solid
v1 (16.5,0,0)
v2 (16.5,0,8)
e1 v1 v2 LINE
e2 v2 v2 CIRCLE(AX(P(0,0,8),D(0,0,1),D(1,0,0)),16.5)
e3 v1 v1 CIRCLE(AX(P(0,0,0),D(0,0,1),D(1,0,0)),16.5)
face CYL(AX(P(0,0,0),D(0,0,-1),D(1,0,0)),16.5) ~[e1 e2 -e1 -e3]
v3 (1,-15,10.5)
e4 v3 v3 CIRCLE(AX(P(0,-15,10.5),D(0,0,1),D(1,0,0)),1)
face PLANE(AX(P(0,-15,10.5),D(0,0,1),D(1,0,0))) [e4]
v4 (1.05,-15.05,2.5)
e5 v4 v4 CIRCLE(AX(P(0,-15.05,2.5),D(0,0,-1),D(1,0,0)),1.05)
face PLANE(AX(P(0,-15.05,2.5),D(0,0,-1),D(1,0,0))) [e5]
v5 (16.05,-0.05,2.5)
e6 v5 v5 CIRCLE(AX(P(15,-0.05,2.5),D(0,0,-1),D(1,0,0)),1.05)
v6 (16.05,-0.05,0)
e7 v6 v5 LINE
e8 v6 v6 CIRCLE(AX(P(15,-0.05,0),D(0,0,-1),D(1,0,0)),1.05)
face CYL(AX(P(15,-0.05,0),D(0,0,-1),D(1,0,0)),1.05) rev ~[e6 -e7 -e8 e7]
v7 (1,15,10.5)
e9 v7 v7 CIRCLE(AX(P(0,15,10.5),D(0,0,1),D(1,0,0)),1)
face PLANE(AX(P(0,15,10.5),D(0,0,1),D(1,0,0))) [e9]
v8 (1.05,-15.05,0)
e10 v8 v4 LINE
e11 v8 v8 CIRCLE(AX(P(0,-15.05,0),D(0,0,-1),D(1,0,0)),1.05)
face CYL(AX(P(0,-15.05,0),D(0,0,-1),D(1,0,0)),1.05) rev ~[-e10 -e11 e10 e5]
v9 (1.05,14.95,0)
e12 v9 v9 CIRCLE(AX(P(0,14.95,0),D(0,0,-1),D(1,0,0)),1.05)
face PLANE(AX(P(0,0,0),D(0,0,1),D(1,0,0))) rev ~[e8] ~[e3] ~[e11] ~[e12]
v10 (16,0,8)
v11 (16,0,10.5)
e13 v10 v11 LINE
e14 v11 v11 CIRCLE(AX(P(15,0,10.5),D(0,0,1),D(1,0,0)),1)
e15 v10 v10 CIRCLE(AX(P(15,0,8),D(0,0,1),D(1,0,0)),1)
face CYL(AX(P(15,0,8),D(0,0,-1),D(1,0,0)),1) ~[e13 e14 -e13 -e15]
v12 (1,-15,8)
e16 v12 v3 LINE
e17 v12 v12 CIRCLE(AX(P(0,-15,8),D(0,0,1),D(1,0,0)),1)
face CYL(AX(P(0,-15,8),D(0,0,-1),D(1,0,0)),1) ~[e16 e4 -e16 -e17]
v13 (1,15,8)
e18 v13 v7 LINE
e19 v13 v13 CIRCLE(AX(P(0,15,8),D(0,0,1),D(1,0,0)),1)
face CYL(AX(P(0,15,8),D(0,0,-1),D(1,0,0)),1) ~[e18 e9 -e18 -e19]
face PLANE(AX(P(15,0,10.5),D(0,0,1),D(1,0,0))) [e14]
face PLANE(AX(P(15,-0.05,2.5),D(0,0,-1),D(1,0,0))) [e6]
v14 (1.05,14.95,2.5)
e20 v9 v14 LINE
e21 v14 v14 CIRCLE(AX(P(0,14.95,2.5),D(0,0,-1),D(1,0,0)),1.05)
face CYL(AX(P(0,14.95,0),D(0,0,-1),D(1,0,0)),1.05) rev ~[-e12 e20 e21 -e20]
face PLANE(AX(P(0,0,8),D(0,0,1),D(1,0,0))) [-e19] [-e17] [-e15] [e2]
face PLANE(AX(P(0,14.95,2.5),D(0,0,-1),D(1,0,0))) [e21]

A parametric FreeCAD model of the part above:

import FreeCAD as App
import Part
import Sketcher

V = App.Vector

doc = App.newDocument("Part")
body = doc.addObject("PartDesign::Body", "Body")

# Sketch on XY plane
sketch1 = body.newObject("Sketcher::SketchObject", "Sketch")
sketch1.AttachmentSupport = (doc.getObject("XY_Plane"), [""])
sketch1.MapMode = "FlatFace"
sketch1.addGeometry(Part.Circle(V(0, 0, 0), V(0, 0, 1), 16.5), False)
sketch1.addConstraint([
    Sketcher.Constraint("Coincident", 0, 3, -1, 1),
    Sketcher.Constraint("Diameter", 0, 33.0),
])
pad1 = body.newObject("PartDesign::Pad", "Pad")
pad1.Profile = sketch1
pad1.Length = 8

# Sketch on XY plane
sketch2 = body.newObject("Sketcher::SketchObject", "Sketch001")
sketch2.AttachmentSupport = (doc.getObject("XY_Plane"), [""])
sketch2.MapMode = "FlatFace"
sketch2.addGeometry([
    Part.Circle(V(0, -15.05, 0), V(0, 0, 1), 1.05),
    Part.Circle(V(15, -0.05, 0), V(0, 0, 1), 1.05),
    Part.Circle(V(0, 14.95, 0), V(0, 0, 1), 1.05),
], False)
sketch2.addConstraint([
    Sketcher.Constraint("Equal", 0, 1),
    Sketcher.Constraint("Equal", 1, 2),
    Sketcher.Constraint("PointOnObject", 0, 3, -2),
    Sketcher.Constraint("PointOnObject", 2, 3, -2),
    Sketcher.Constraint("Diameter", 0, 2.1),
    Sketcher.Constraint("DistanceX", -1, 1, 1, 3, 15.0),
    Sketcher.Constraint("DistanceY", 0, 3, 1, 3, 15.0),
    Sketcher.Constraint("DistanceY", 1, 3, 2, 3, 15.0),
    Sketcher.Constraint("DistanceY", 0, 3, -1, 1, 15.05),
])
pocket1 = body.newObject("PartDesign::Pocket", "Pocket")
pocket1.Profile = sketch2
pocket1.Length = 2.5
pocket1.Reversed = True

# Sketch on XY plane
sketch3 = body.newObject("Sketcher::SketchObject", "Sketch002")
sketch3.AttachmentSupport = (doc.getObject("XY_Plane"), [""])
sketch3.MapMode = "FlatFace"
sketch3.AttachmentOffset = App.Placement(V(0, 0, 8), App.Rotation())
sketch3.addGeometry([
    Part.Circle(V(0, 15, 0), V(0, 0, 1), 1),
    Part.Circle(V(15, 0, 0), V(0, 0, 1), 1),
    Part.Circle(V(0, -15, 0), V(0, 0, 1), 1),
], False)
sketch3.addConstraint([
    Sketcher.Constraint("Equal", 0, 1),
    Sketcher.Constraint("Equal", 1, 2),
    Sketcher.Constraint("Symmetric", 0, 3, 2, 3, -1, 1),
    Sketcher.Constraint("PointOnObject", 0, 3, -2),
    Sketcher.Constraint("PointOnObject", 1, 3, -1),
    Sketcher.Constraint("Diameter", 0, 2.0),
    Sketcher.Constraint("DistanceY", -1, 1, 0, 3, 15.0),
    Sketcher.Constraint("DistanceX", -1, 1, 1, 3, 15.0),
])
pad2 = body.newObject("PartDesign::Pad", "Pad001")
pad2.Profile = sketch3
pad2.Length = 2.5

doc.recompute()
